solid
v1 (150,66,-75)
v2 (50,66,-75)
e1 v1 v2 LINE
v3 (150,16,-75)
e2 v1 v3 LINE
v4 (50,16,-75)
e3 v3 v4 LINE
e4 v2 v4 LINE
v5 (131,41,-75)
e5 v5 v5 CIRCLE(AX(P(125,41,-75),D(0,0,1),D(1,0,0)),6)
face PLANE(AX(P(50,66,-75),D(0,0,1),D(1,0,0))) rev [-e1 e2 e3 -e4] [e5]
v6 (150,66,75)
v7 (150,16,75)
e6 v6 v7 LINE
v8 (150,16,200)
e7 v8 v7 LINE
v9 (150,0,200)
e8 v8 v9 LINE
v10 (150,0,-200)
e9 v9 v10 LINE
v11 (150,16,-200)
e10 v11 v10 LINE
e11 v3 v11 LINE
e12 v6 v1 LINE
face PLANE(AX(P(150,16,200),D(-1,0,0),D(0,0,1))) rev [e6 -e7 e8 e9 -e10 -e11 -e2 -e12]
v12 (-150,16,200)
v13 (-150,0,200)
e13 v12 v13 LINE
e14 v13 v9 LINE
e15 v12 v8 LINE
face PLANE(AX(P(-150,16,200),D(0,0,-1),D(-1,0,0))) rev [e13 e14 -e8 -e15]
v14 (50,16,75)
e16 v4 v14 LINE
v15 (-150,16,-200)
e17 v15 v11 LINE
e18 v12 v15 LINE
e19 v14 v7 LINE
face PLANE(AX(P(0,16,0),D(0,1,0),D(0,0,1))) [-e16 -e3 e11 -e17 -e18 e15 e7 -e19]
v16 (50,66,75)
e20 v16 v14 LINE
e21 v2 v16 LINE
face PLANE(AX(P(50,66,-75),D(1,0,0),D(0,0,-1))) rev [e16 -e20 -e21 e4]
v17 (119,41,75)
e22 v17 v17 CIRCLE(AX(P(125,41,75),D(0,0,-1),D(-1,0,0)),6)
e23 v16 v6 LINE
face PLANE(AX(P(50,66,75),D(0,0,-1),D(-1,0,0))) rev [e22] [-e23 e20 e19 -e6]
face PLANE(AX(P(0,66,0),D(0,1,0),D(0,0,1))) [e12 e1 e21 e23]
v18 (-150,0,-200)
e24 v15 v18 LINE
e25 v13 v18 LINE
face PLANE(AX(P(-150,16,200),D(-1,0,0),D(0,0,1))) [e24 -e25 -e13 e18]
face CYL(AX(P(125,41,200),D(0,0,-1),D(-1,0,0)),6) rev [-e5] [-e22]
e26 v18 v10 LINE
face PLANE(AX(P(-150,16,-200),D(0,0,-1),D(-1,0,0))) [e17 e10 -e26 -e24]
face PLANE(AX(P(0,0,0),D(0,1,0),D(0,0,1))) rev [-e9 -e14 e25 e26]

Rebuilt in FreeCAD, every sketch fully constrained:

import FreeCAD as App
import Part
import Sketcher

V = App.Vector


def add_polygon(sketch, points):
    """Adds a closed chain of lines whose ends are joined by coincident constraints."""
    first, n = sketch.GeometryCount, len(points)
    for a, b in zip(points, points[1:] + points[:1]):
        sketch.addGeometry(Part.LineSegment(App.Vector(*a, 0), App.Vector(*b, 0)), False)
    for i in range(n):
        sketch.addConstraint(Sketcher.Constraint("Coincident", first + i, 2, first + (i + 1) % n, 1))

doc = App.newDocument("Part")
body = doc.addObject("PartDesign::Body", "Body")

sketch1 = body.newObject("Sketcher::SketchObject", "Sketch")
sketch1.AttachmentSupport = (doc.getObject("XZ_Plane"), [""])
sketch1.MapMode = "FlatFace"
add_polygon(sketch1, [(-150, -200), (-150, 200), (150, 200), (150, -200)])
sketch1.addConstraint([
    Sketcher.Constraint("Vertical", 0),
    Sketcher.Constraint("Horizontal", 1),
    Sketcher.Constraint("Vertical", 2),
    Sketcher.Constraint("Horizontal", 3),
    Sketcher.Constraint("Symmetric", 0, 2, 2, 2, -1, 1),
    Sketcher.Constraint("DistanceX", 1, 1, 1, 2, 300.0),
    Sketcher.Constraint("DistanceY", 0, 1, 0, 2, 400.0),
])
pad1 = body.newObject("PartDesign::Pad", "Pad")
pad1.Profile = sketch1
pad1.Length = 16
pad1.Reversed = True

sketch2 = body.newObject("Sketcher::SketchObject", "Sketch001")
sketch2.AttachmentSupport = (doc.getObject("XZ_Plane"), [""])
sketch2.MapMode = "FlatFace"
sketch2.AttachmentOffset = App.Placement(V(0, 0, -16), App.Rotation())
add_polygon(sketch2, [(50, -75), (50, 75), (150, 75), (150, -75)])
sketch2.addConstraint([
    Sketcher.Constraint("Vertical", 0),
    Sketcher.Constraint("Horizontal", 1),
    Sketcher.Constraint("Vertical", 2),
    Sketcher.Constraint("Horizontal", 3),
    Sketcher.Constraint("DistanceX", 1, 1, 1, 2, 100.0),
    Sketcher.Constraint("DistanceY", 0, 1, 0, 2, 150.0),
    Sketcher.Constraint("DistanceX", -1, 1, 0, 2, 50.0),
    Sketcher.Constraint("DistanceY", -1, 1, 0, 2, 75.0),
])
pad2 = body.newObject("PartDesign::Pad", "Pad001")
pad2.Profile = sketch2
pad2.Length = 50
pad2.Reversed = True

sketch3 = body.newObject("Sketcher::SketchObject", "Sketch002")
sketch3.AttachmentSupport = (doc.getObject("XY_Plane"), [""])
sketch3.MapMode = "FlatFace"
sketch3.AttachmentOffset = App.Placement(V(0, 0, -75), App.Rotation())
sketch3.addGeometry(Part.Circle(V(125, 41, 0), V(0, 0, 1), 6), False)
sketch3.addConstraint([
    Sketcher.Constraint("Diameter", 0, 12.0),
    Sketcher.Constraint("DistanceX", -1, 1, 0, 3, 125.0),
    Sketcher.Constraint("DistanceY", -1, 1, 0, 3, 41.0),
])
pocket1 = body.newObject("PartDesign::Pocket", "Pocket")
pocket1.Profile = sketch3
pocket1.Type = "ThroughAll"
pocket1.Midplane = True

doc.recompute()
